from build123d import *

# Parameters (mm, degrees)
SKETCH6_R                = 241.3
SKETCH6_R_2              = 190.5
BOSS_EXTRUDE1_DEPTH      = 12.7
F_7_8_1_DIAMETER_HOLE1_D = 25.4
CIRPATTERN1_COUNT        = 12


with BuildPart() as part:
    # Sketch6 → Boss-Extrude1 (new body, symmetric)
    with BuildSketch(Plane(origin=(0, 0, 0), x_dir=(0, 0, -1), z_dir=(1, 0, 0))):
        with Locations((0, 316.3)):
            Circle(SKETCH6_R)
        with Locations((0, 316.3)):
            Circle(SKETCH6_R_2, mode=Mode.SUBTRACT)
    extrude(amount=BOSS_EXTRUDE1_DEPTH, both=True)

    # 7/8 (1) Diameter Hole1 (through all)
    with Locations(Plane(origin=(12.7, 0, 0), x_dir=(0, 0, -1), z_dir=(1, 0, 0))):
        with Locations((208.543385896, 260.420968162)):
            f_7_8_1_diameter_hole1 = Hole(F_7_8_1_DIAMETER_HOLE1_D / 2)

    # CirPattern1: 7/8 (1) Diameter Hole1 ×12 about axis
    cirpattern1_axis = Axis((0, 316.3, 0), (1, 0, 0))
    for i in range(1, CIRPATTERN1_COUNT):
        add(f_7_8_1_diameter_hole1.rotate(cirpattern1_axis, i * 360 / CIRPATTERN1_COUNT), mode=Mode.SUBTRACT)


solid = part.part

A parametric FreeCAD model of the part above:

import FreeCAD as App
import Part
import Sketcher
from FreeCAD import Vector
Q = App.Units.Quantity

doc = App.newDocument("Part")
params = doc.addObject("Spreadsheet::Sheet", "Params")
for row, (alias, value) in enumerate([
    ("sketch1_diameter", "19 in"),
    ("sketch1_diameter2", "15 in"),
    ("pad1_length", "1 in"),
    ("sketch2_diameter", "1 in"),
    ("hole_diameter", "1 in"),
], start=1):
    params.set(f"A{row}", alias)
    params.set(f"B{row}", "=" + value)
    params.setAlias(f"B{row}", alias)

body = doc.addObject("PartDesign::Body", "Body")

sketch1 = doc.addObject("Sketcher::SketchObject", "Sketch")
body.addObject(sketch1)
sketch1.AttachmentSupport = (doc.YZ_Plane, [""])
sketch1.MapMode = "FlatFace"
sketch1.addGeometry([
    Part.Circle(Vector(316, 0, 0), Vector(0, 0, 1), 241),
    Part.Circle(Vector(316, 0, 0), Vector(0, 0, 1), 190),
], False)
sketch1.addConstraint([
    Sketcher.Constraint("Coincident", 1, 3, 0, 3),
    Sketcher.Constraint("PointOnObject", 0, 3, -1),
    Sketcher.Constraint("Diameter", 0, Q("19 in")),
    Sketcher.Constraint("Diameter", 1, Q("15 in")),
    Sketcher.Constraint("DistanceX", -1, 1, 0, 3, Q("316.3 mm")),
])
sketch1.setExpression("Constraints[2]", "Params.sketch1_diameter")
sketch1.setExpression("Constraints[3]", "Params.sketch1_diameter2")
pad1 = doc.addObject("PartDesign::Pad", "Pad")
body.addObject(pad1)
pad1.Profile = sketch1
pad1.setExpression("Length", "Params.pad1_length")
pad1.Midplane = True

sketch2 = doc.addObject("Sketcher::SketchObject", "Sketch001")
body.addObject(sketch2)
sketch2.AttachmentSupport = (doc.YZ_Plane, [""])
sketch2.MapMode = "FlatFace"
sketch2.AttachmentOffset = App.Placement(Vector(0, 0, 0.5 * 25.4), App.Rotation())
sketch2.addGeometry(Part.Circle(Vector(260, -209, 0), Vector(0, 0, 1), 13), False)
sketch2.addConstraint([
    Sketcher.Constraint("Diameter", 0, Q("1 in")),
    Sketcher.Constraint("DistanceX", -1, 1, 0, 3, Q("260.420968 mm")),
    Sketcher.Constraint("DistanceY", 0, 3, -1, 1, Q("208.543386 mm")),
])
sketch2.setExpression("Constraints[0]", "Params.sketch2_diameter")
doc.recompute()
hole = doc.addObject("PartDesign::Hole", "Hole")
body.addObject(hole)
hole.Profile = sketch2
hole.ThreadType = "None"
hole.setExpression("Diameter", "Params.hole_diameter")
hole.DepthType = "ThroughAll"
doc.recompute()

datumline = doc.addObject("PartDesign::Line", "DatumLine")
body.addObject(datumline)
datumline.Placement = App.Placement(Vector(0, 316.3, 0), App.Rotation(Vector(0, 0, 1), Vector(1, 0, 0)))
polarpattern = doc.addObject("PartDesign::PolarPattern", "PolarPattern")
body.addObject(polarpattern)
polarpattern.Originals = [hole]
polarpattern.Axis = (datumline, [""])
polarpattern.Angle = 360
polarpattern.Occurrences = 12
body.Tip = polarpattern

doc.recompute()
